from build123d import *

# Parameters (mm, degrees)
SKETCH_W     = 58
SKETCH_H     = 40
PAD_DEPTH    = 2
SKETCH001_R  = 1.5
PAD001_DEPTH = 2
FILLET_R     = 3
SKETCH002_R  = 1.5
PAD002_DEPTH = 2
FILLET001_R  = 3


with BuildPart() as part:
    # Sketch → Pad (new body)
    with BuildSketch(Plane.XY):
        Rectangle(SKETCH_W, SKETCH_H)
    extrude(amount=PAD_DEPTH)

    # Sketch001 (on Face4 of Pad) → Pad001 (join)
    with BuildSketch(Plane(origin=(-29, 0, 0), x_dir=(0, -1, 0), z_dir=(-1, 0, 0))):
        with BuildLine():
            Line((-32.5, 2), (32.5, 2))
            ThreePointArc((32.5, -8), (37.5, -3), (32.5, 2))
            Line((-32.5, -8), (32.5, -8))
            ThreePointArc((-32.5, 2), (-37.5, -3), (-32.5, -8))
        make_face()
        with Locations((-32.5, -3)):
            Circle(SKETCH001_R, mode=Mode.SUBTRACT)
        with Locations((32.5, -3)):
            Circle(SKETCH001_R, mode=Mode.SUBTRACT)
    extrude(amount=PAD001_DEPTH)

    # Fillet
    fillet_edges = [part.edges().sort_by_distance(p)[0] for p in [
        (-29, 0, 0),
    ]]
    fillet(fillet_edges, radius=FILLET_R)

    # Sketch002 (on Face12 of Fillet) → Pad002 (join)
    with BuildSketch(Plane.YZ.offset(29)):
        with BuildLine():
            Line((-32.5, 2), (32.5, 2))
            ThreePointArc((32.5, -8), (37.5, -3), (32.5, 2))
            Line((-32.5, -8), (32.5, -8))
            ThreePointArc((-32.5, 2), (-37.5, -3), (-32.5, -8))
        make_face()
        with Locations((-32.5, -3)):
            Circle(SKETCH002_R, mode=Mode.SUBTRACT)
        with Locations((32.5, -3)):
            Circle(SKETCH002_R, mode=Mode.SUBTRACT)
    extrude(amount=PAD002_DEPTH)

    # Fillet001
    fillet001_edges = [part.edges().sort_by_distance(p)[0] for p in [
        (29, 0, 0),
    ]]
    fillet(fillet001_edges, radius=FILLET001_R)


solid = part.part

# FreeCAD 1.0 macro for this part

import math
import FreeCAD as App
import Part
import Sketcher
from FreeCAD import Vector


def edges_at(feature, points):
    """Names of the edges that pass closest to the given points."""
    edges = feature.Shape.Edges
    near = lambda p: min(range(len(edges)), key=lambda i: edges[i].distToShape(Part.Vertex(*p))[0])
    return sorted({f"Edge{near(p) + 1}" for p in points})


def add_polygon(sketch, points):
    """Adds a closed chain of lines whose ends are joined by coincident constraints."""
    first, n = sketch.GeometryCount, len(points)
    for a, b in zip(points, points[1:] + points[:1]):
        sketch.addGeometry(Part.LineSegment(App.Vector(*a, 0), App.Vector(*b, 0)), False)
    for i in range(n):
        sketch.addConstraint(Sketcher.Constraint("Coincident", first + i, 2, first + (i + 1) % n, 1))

doc = App.newDocument("Part")
body = doc.addObject("PartDesign::Body", "Body")

sketch1 = doc.addObject("Sketcher::SketchObject", "Sketch")
body.addObject(sketch1)
sketch1.AttachmentSupport = (doc.XY_Plane, [""])
sketch1.MapMode = "FlatFace"
add_polygon(sketch1, [(-29, 20), (-29, -20), (29, -20), (29, 20)])
sketch1.addConstraint([
    Sketcher.Constraint("Vertical", 0),
    Sketcher.Constraint("Horizontal", 1),
    Sketcher.Constraint("Vertical", 2),
    Sketcher.Constraint("Horizontal", 3),
    Sketcher.Constraint("Symmetric", 0, 2, 2, 2, -1, 1),
    Sketcher.Constraint("DistanceX", 1, 1, 1, 2, 58.0),
    Sketcher.Constraint("DistanceY", 0, 2, 0, 1, 40.0),
])
pad1 = doc.addObject("PartDesign::Pad", "Pad")
body.addObject(pad1)
pad1.Profile = sketch1
pad1.Length = 2

sketch2 = doc.addObject("Sketcher::SketchObject", "Sketch001")
body.addObject(sketch2)
sketch2.AttachmentSupport = (doc.YZ_Plane, [""])
sketch2.MapMode = "FlatFace"
sketch2.AttachmentOffset = App.Placement(Vector(0, 0, -29), App.Rotation())
sketch2.addGeometry([
    Part.LineSegment(Vector(-32.5, 2, 0), Vector(32.5, 2, 0)),
    Part.ArcOfCircle(Part.Circle(Vector(32.5, -3, 0), Vector(0, 0, 1), 5), math.radians(-90), math.radians(90)),
    Part.LineSegment(Vector(32.5, -8, 0), Vector(-32.5, -8, 0)),
    Part.ArcOfCircle(Part.Circle(Vector(-32.5, -3, 0), Vector(0, 0, 1), 5), math.radians(90), math.radians(270)),
    Part.Circle(Vector(-32.5, -3, 0), Vector(0, 0, 1), 1.5),
    Part.Circle(Vector(32.5, -3, 0), Vector(0, 0, 1), 1.5),
], False)
sketch2.addConstraint([
    Sketcher.Constraint("Tangent", 0, 2, 1, 2),
    Sketcher.Constraint("Tangent", 1, 1, 2, 1),
    Sketcher.Constraint("Tangent", 2, 2, 3, 2),
    Sketcher.Constraint("Tangent", 3, 1, 0, 1),
    Sketcher.Constraint("Horizontal", 0),
    Sketcher.Constraint("Horizontal", 2),
    Sketcher.Constraint("Coincident", 4, 3, 3, 3),
    Sketcher.Constraint("Coincident", 5, 3, 1, 3),
    Sketcher.Constraint("Equal", 4, 5),
    Sketcher.Constraint("Diameter", 4, 3.0),
    Sketcher.Constraint("Radius", 1, 5.0),
    Sketcher.Constraint("DistanceX", 0, 1, 0, 2, 65.0),
    Sketcher.Constraint("DistanceY", 1, 3, -1, 1, 3.0),
    Sketcher.Constraint("DistanceX", -1, 1, 1, 3, 32.5),
])
pad2 = doc.addObject("PartDesign::Pad", "Pad001")
body.addObject(pad2)
pad2.Profile = sketch2
pad2.Length = 2
pad2.Reversed = True
doc.recompute()

fillet = doc.addObject("PartDesign::Fillet", "Fillet")
body.addObject(fillet)
fillet.Base = (pad2, edges_at(pad2, [(-29, 0, 0)]))
fillet.Radius = 3

sketch3 = doc.addObject("Sketcher::SketchObject", "Sketch002")
body.addObject(sketch3)
sketch3.AttachmentSupport = (doc.YZ_Plane, [""])
sketch3.MapMode = "FlatFace"
sketch3.AttachmentOffset = App.Placement(Vector(0, 0, 29), App.Rotation())
sketch3.addGeometry([
    Part.LineSegment(Vector(32.5, 2, 0), Vector(-32.5, 2, 0)),
    Part.ArcOfCircle(Part.Circle(Vector(-32.5, -3, 0), Vector(0, 0, 1), 5), math.radians(90), math.radians(270)),
    Part.LineSegment(Vector(-32.5, -8, 0), Vector(32.5, -8, 0)),
    Part.ArcOfCircle(Part.Circle(Vector(32.5, -3, 0), Vector(0, 0, 1), 5), math.radians(-90), math.radians(90)),
    Part.Circle(Vector(32.5, -3, 0), Vector(0, 0, 1), 1.5),
    Part.Circle(Vector(-32.5, -3, 0), Vector(0, 0, 1), 1.5),
], False)
sketch3.addConstraint([
    Sketcher.Constraint("Tangent", 0, 2, 1, 1),
    Sketcher.Constraint("Tangent", 1, 2, 2, 1),
    Sketcher.Constraint("Tangent", 2, 2, 3, 1),
    Sketcher.Constraint("Tangent", 3, 2, 0, 1),
    Sketcher.Constraint("Horizontal", 0),
    Sketcher.Constraint("Horizontal", 2),
    Sketcher.Constraint("Coincident", 4, 3, 3, 3),
    Sketcher.Constraint("Coincident", 5, 3, 1, 3),
    Sketcher.Constraint("Equal", 4, 5),
    Sketcher.Constraint("Diameter", 4, 3.0),
    Sketcher.Constraint("Radius", 1, 5.0),
    Sketcher.Constraint("DistanceX", 0, 2, 0, 1, 65.0),
    Sketcher.Constraint("DistanceY", 1, 3, -1, 1, 3.0),
    Sketcher.Constraint("DistanceX", 1, 3, -1, 1, 32.5),
])
pad3 = doc.addObject("PartDesign::Pad", "Pad002")
body.addObject(pad3)
pad3.Profile = sketch3
pad3.Length = 2
doc.recompute()

fillet2 = doc.addObject("PartDesign::Fillet", "Fillet001")
body.addObject(fillet2)
fillet2.Base = (pad3, edges_at(pad3, [(29, 0, 0)]))
fillet2.Radius = 3

doc.recompute()
